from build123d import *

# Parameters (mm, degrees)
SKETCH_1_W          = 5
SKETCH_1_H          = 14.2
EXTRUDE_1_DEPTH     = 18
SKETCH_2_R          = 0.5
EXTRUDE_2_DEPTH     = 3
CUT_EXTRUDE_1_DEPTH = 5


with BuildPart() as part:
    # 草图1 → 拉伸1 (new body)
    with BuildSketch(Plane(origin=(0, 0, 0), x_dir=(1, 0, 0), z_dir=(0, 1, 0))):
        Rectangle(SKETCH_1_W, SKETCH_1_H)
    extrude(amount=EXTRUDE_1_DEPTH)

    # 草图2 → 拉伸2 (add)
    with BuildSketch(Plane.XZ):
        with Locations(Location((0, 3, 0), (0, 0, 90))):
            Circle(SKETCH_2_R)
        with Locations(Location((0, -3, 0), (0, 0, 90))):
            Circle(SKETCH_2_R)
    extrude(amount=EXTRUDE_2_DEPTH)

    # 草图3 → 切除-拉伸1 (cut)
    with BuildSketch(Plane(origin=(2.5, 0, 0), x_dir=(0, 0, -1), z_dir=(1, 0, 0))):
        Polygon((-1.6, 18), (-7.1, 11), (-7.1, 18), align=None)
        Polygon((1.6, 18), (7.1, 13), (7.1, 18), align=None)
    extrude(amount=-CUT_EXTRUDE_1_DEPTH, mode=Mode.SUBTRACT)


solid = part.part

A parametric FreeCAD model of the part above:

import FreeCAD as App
import Part
import Sketcher

V = App.Vector
Q = App.Units.Quantity

doc = App.newDocument("Part")
body = doc.addObject("PartDesign::Body", "Body")

# Sketch on XZ plane
sketch1 = body.newObject("Sketcher::SketchObject", "Sketch")
sketch1.AttachmentSupport = (doc.getObject("XZ_Plane"), [""])
sketch1.MapMode = "FlatFace"
sketch1.addGeometry([
    Part.LineSegment(V(-2.5, -7.1, 0), V(-2.5, 7.1, 0)),
    Part.LineSegment(V(-2.5, 7.1, 0), V(2.5, 7.1, 0)),
    Part.LineSegment(V(2.5, 7.1, 0), V(2.5, -7.1, 0)),
    Part.LineSegment(V(2.5, -7.1, 0), V(-2.5, -7.1, 0)),
], False)
sketch1.addConstraint([
    Sketcher.Constraint("Coincident", 0, 2, 1, 1),
    Sketcher.Constraint("Coincident", 1, 2, 2, 1),
    Sketcher.Constraint("Coincident", 2, 2, 3, 1),
    Sketcher.Constraint("Coincident", 3, 2, 0, 1),
    Sketcher.Constraint("Vertical", 0),
    Sketcher.Constraint("Horizontal", 1),
    Sketcher.Constraint("Vertical", 2),
    Sketcher.Constraint("Horizontal", 3),
    Sketcher.Constraint("Symmetric", 0, 2, 2, 2, -1, 1),
    Sketcher.Constraint("DistanceX", 1, 1, 1, 2, Q("5 mm")),
    Sketcher.Constraint("DistanceY", 0, 1, 0, 2, Q("14.2 mm")),
])
pad1 = body.newObject("PartDesign::Pad", "Pad")
pad1.Profile = sketch1
pad1.Length = 18
pad1.Reversed = True

# Sketch on XZ plane
sketch2 = body.newObject("Sketcher::SketchObject", "Sketch001")
sketch2.AttachmentSupport = (doc.getObject("XZ_Plane"), [""])
sketch2.MapMode = "FlatFace"
sketch2.addGeometry([
    Part.Circle(V(0, 3, 0), V(0, 0, 1), 0.5),
    Part.Circle(V(0, -3, 0), V(0, 0, 1), 0.5),
], False)
sketch2.addConstraint([
    Sketcher.Constraint("Equal", 0, 1),
    Sketcher.Constraint("Symmetric", 0, 3, 1, 3, -1, 1),
    Sketcher.Constraint("PointOnObject", 0, 3, -2),
    Sketcher.Constraint("Diameter", 0, Q("1 mm")),
    Sketcher.Constraint("DistanceY", -1, 1, 0, 3, Q("3 mm")),
])
pad2 = body.newObject("PartDesign::Pad", "Pad001")
pad2.Profile = sketch2
pad2.Length = 3

# Sketch on YZ plane
sketch3 = body.newObject("Sketcher::SketchObject", "Sketch002")
sketch3.AttachmentSupport = (doc.getObject("YZ_Plane"), [""])
sketch3.MapMode = "FlatFace"
sketch3.AttachmentOffset = App.Placement(V(0, 0, 2.5), App.Rotation())
sketch3.addGeometry([
    Part.LineSegment(V(11, 7.1, 0), V(18, 1.6, 0)),  # 0
    Part.LineSegment(V(18, 1.6, 0), V(18, 7.1, 0)),  # 1
    Part.LineSegment(V(18, 7.1, 0), V(11, 7.1, 0)),  # 2
    Part.LineSegment(V(18, -1.6, 0), V(13, -7.1, 0)),  # 3
    Part.LineSegment(V(13, -7.1, 0), V(18, -7.1, 0)),  # 4
    Part.LineSegment(V(18, -7.1, 0), V(18, -1.6, 0)),  # 5
], False)
sketch3.addConstraint([
    Sketcher.Constraint("Coincident", 0, 2, 1, 1),
    Sketcher.Constraint("Coincident", 1, 2, 2, 1),
    Sketcher.Constraint("Coincident", 2, 2, 0, 1),
    Sketcher.Constraint("Coincident", 3, 2, 4, 1),
    Sketcher.Constraint("Coincident", 4, 2, 5, 1),
    Sketcher.Constraint("Coincident", 5, 2, 3, 1),
    Sketcher.Constraint("Vertical", 1),
    Sketcher.Constraint("Horizontal", 2),
    Sketcher.Constraint("Horizontal", 4),
    Sketcher.Constraint("Vertical", 5),
    Sketcher.Constraint("Symmetric", 1, 2, 4, 2, -1),
    Sketcher.Constraint("Equal", 1, 5),
    Sketcher.Constraint("DistanceX", 2, 2, 2, 1, Q("7 mm")),
    Sketcher.Constraint("DistanceX", 4, 1, 4, 2, Q("5 mm")),
    Sketcher.Constraint("DistanceY", 1, 1, 1, 2, Q("5.5 mm")),
    Sketcher.Constraint("DistanceX", -1, 1, 0, 2, Q("18 mm")),
    Sketcher.Constraint("DistanceY", -1, 1, 0, 2, Q("1.6 mm")),
])
pocket1 = body.newObject("PartDesign::Pocket", "Pocket")
pocket1.Profile = sketch3
pocket1.Length = 5

doc.recompute()
